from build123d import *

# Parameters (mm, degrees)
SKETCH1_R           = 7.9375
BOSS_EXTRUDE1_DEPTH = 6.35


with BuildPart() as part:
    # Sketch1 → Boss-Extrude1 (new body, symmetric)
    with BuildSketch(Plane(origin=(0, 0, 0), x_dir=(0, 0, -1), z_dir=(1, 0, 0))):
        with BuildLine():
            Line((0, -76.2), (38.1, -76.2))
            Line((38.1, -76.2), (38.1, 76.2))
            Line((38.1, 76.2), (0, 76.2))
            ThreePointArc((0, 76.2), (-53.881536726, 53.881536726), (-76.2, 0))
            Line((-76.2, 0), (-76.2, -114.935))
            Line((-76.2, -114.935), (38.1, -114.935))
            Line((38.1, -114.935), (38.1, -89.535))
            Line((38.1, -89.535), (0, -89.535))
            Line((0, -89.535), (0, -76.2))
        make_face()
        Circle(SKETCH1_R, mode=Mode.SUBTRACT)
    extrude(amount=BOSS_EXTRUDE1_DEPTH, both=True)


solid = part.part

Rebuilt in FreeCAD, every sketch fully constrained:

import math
import FreeCAD as App
import Part
import Sketcher
Q = App.Units.Quantity

doc = App.newDocument("Part")
body = doc.addObject("PartDesign::Body", "Body")

sketch1 = body.newObject("Sketcher::SketchObject", "Sketch")
sketch1.AttachmentSupport = (doc.getObject("YZ_Plane"), [""])
sketch1.MapMode = "FlatFace"
sketch1.addGeometry([
    Part.LineSegment(App.Vector(-76.2, 0, 0), App.Vector(-76.2, -38.1, 0)),
    Part.LineSegment(App.Vector(-76.2, -38.1, 0), App.Vector(76.2, -38.1, 0)),
    Part.LineSegment(App.Vector(76.2, -38.1, 0), App.Vector(76.2, 0, 0)),
    Part.ArcOfCircle(Part.Circle(App.Vector(0, 0, 0), App.Vector(0, 0, 1), 76.2), math.radians(0), math.radians(90)),
    Part.LineSegment(App.Vector(0, 76.2, 0), App.Vector(-114.935, 76.2, 0)),
    Part.LineSegment(App.Vector(-114.935, 76.2, 0), App.Vector(-114.935, -38.1, 0)),
    Part.LineSegment(App.Vector(-114.935, -38.1, 0), App.Vector(-89.535, -38.1, 0)),
    Part.LineSegment(App.Vector(-89.535, -38.1, 0), App.Vector(-89.535, 0, 0)),
    Part.LineSegment(App.Vector(-89.535, 0, 0), App.Vector(-76.2, 0, 0)),
    Part.Circle(App.Vector(0, 0, 0), App.Vector(0, 0, 1), 7.9375),
], False)
sketch1.addConstraint([
    Sketcher.Constraint("Coincident", 0, 2, 1, 1),
    Sketcher.Constraint("Coincident", 1, 2, 2, 1),
    Sketcher.Constraint("Tangent", 2, 2, 3, 1),
    Sketcher.Constraint("Tangent", 3, 2, 4, 1),
    Sketcher.Constraint("Coincident", 4, 2, 5, 1),
    Sketcher.Constraint("Coincident", 5, 2, 6, 1),
    Sketcher.Constraint("Coincident", 6, 2, 7, 1),
    Sketcher.Constraint("Coincident", 7, 2, 8, 1),
    Sketcher.Constraint("Coincident", 8, 2, 0, 1),
    Sketcher.Constraint("Vertical", 0),
    Sketcher.Constraint("Horizontal", 1),
    Sketcher.Constraint("Vertical", 2),
    Sketcher.Constraint("Horizontal", 4),
    Sketcher.Constraint("Vertical", 5),
    Sketcher.Constraint("Horizontal", 6),
    Sketcher.Constraint("Vertical", 7),
    Sketcher.Constraint("Horizontal", 8),
    Sketcher.Constraint("Coincident", 3, 3, -1, 1),
    Sketcher.Constraint("Coincident", 9, 3, -1, 1),
    Sketcher.Constraint("Symmetric", 2, 2, 8, 2, -1, 1),
    Sketcher.Constraint("Horizontal", 1, 2, 5, 2),
    Sketcher.Constraint("Radius", 3, Q("3 in")),
    Sketcher.Constraint("DistanceX", 6, 1, 6, 2, Q("1 in")),
    Sketcher.Constraint("Diameter", 9, Q("0.625 in")),
    Sketcher.Constraint("DistanceY", 0, 2, 0, 1, Q("1.5 in")),
    Sketcher.Constraint("DistanceX", 4, 2, 4, 1, Q("4.525 in")),
])
pad1 = body.newObject("PartDesign::Pad", "Pad")
pad1.Profile = sketch1
pad1.Length = Q("0.5 in")
pad1.Midplane = True

doc.recompute()
